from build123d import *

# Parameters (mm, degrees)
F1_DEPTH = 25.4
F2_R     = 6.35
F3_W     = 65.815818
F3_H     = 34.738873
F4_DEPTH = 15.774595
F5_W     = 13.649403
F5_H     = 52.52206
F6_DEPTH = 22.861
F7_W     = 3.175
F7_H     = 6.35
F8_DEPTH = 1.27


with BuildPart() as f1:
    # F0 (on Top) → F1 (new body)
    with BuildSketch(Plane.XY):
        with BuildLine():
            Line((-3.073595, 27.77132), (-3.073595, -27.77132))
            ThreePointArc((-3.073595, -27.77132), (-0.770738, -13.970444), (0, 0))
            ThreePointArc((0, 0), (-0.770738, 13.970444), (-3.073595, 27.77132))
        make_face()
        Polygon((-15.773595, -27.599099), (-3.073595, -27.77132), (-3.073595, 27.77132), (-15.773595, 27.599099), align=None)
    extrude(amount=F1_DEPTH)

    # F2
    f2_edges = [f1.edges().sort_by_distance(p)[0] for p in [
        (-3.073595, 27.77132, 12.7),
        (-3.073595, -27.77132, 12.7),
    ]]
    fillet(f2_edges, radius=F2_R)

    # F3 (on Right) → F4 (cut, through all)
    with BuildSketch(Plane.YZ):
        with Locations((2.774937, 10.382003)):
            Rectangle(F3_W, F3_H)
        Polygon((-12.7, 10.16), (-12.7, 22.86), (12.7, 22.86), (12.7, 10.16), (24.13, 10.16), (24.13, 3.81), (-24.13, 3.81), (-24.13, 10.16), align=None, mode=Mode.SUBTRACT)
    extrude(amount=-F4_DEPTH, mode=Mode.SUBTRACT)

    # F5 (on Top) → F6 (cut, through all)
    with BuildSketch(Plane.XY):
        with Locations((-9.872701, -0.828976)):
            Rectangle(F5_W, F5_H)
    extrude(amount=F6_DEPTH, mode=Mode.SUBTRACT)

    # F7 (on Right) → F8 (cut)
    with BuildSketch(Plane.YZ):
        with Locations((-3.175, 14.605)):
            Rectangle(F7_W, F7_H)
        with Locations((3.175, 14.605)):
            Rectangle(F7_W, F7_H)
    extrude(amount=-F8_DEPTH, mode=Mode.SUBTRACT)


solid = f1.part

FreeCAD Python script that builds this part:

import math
import FreeCAD as App
import Part
import Sketcher
from FreeCAD import Vector
Q = App.Units.Quantity


def edges_at(feature, points):
    """Names of the edges that pass closest to the given points."""
    edges = feature.Shape.Edges
    near = lambda p: min(range(len(edges)), key=lambda i: edges[i].distToShape(Part.Vertex(*p))[0])
    return sorted({f"Edge{near(p) + 1}" for p in points})


def add_polygon(sketch, points):
    """Adds a closed chain of lines whose ends are joined by coincident constraints."""
    first, n = sketch.GeometryCount, len(points)
    for a, b in zip(points, points[1:] + points[:1]):
        sketch.addGeometry(Part.LineSegment(App.Vector(*a, 0), App.Vector(*b, 0)), False)
    for i in range(n):
        sketch.addConstraint(Sketcher.Constraint("Coincident", first + i, 2, first + (i + 1) % n, 1))

doc = App.newDocument("Part")
params = doc.addObject("Spreadsheet::Sheet", "Params")
for row, (alias, value) in enumerate([
    ("pad1_length", "1 in"),
    ("fillet_radius", "0.25 in"),
    ("sketch2_width", "1 in"),
    ("sketch2_width2", "1.9 in"),
    ("sketch2_height", "0.5 in"),
    ("sketch2_height2", "0.25 in"),
    ("sketch4_height", "0.25 in"),
    ("sketch4_width", "0.125 in"),
    ("pocket3_length", "0.05 in"),
], start=1):
    params.set(f"A{row}", alias)
    params.set(f"B{row}", "=" + value)
    params.setAlias(f"B{row}", alias)

body = doc.addObject("PartDesign::Body", "Body")

# Sketch on XY plane
sketch1 = body.newObject("Sketcher::SketchObject", "Sketch")
sketch1.AttachmentSupport = (doc.getObject("XY_Plane"), [""])
sketch1.MapMode = "FlatFace"
sketch1.addGeometry([
    Part.ArcOfCircle(Part.Circle(Vector(-127.000093, 0.000009, 0), Vector(0, 0, 1), 127.000093), math.radians(-12.631029), math.radians(-0.000004)),  # 0
    Part.ArcOfCircle(Part.Circle(Vector(-127.000093, -0.000009, 0), Vector(0, 0, 1), 127.000093), math.radians(0.000004), math.radians(12.631029)),  # 1
    Part.LineSegment(Vector(-3.073595, 27.77132, 0), Vector(-15.773595, 27.599099, 0)),  # 2
    Part.LineSegment(Vector(-15.773595, 27.599099, 0), Vector(-15.773595, -27.599099, 0)),  # 3
    Part.LineSegment(Vector(-15.773595, -27.599099, 0), Vector(-3.073595, -27.77132, 0)),  # 4
], False)
sketch1.addConstraint([
    Sketcher.Constraint("Tangent", 0, 2, 1, 1),
    Sketcher.Constraint("Coincident", 1, 2, 2, 1),
    Sketcher.Constraint("Coincident", 2, 2, 3, 1),
    Sketcher.Constraint("Coincident", 3, 2, 4, 1),
    Sketcher.Constraint("Coincident", 4, 2, 0, 1),
    Sketcher.Constraint("Vertical", 3),
    Sketcher.Constraint("Coincident", 0, 2, -1, 1),
    Sketcher.Constraint("Equal", 0, 1),
    Sketcher.Constraint("Symmetric", 1, 2, 4, 2, -1),
    Sketcher.Constraint("Equal", 2, 4),
    Sketcher.Constraint("DistanceX", 2, 2, 1, 2, Q("0.5 in")),
    Sketcher.Constraint("Radius", 0, Q("127.000093 mm")),
    Sketcher.Constraint("DistanceY", -1, 1, 2, 2, Q("27.599099 mm")),
    Sketcher.Constraint("DistanceX", 0, 3, 1, 2, Q("123.926498 mm")),
])
pad1 = body.newObject("PartDesign::Pad", "Pad")
pad1.Profile = sketch1
pad1.setExpression("Length", "Params.pad1_length")
doc.recompute()

fillet = body.newObject("PartDesign::Fillet", "Fillet")
fillet.Base = (pad1, edges_at(pad1, [(-3.074, 27.771, 12.7), (-3.074, -27.771, 12.7)]))
fillet.setExpression("Radius", "Params.fillet_radius")

# Sketch on YZ plane
sketch2 = body.newObject("Sketcher::SketchObject", "Sketch001")
sketch2.AttachmentSupport = (doc.getObject("YZ_Plane"), [""])
sketch2.MapMode = "FlatFace"
add_polygon(sketch2, [(-30, 28), (-30, -7), (36, -7), (36, 28)])  # lines 0-3
add_polygon(sketch2, [(-24, 10), (-13, 10), (-13, 23), (13, 23), (13, 10), (24, 10), (24, 4), (-24, 4)])  # lines 4-11
sketch2.addConstraint([
    Sketcher.Constraint("Vertical", 0),
    Sketcher.Constraint("Horizontal", 1),
    Sketcher.Constraint("Vertical", 2),
    Sketcher.Constraint("Horizontal", 3),
    Sketcher.Constraint("Horizontal", 4),
    Sketcher.Constraint("Vertical", 5),
    Sketcher.Constraint("Horizontal", 6),
    Sketcher.Constraint("Vertical", 7),
    Sketcher.Constraint("Horizontal", 8),
    Sketcher.Constraint("Vertical", 9),
    Sketcher.Constraint("Horizontal", 10),
    Sketcher.Constraint("Vertical", 11),
    Sketcher.Constraint("Symmetric", 4, 2, 7, 2, -2),
    Sketcher.Constraint("Equal", 4, 8),
    Sketcher.Constraint("DistanceX", 6, 1, 6, 2, Q("1 in")),
    Sketcher.Constraint("DistanceX", 10, 2, 10, 1, Q("1.9 in")),
    Sketcher.Constraint("DistanceY", 5, 1, 5, 2, Q("0.5 in")),
    Sketcher.Constraint("DistanceY", 9, 2, 9, 1, Q("0.25 in")),
    Sketcher.Constraint("DistanceY", -1, 1, 4, 2, Q("0.4 in")),
    Sketcher.Constraint("DistanceX", 1, 1, 1, 2, Q("65.815818 mm")),
    Sketcher.Constraint("DistanceY", 0, 2, 0, 1, Q("34.738873 mm")),
    Sketcher.Constraint("DistanceX", 0, 2, -1, 1, Q("30.132972 mm")),
    Sketcher.Constraint("DistanceY", -1, 1, 2, 2, Q("27.75144 mm")),
])
sketch2.setExpression("Constraints[26]", "Params.sketch2_width")
sketch2.setExpression("Constraints[27]", "Params.sketch2_width2")
sketch2.setExpression("Constraints[28]", "Params.sketch2_height")
sketch2.setExpression("Constraints[29]", "Params.sketch2_height2")
pocket1 = body.newObject("PartDesign::Pocket", "Pocket")
pocket1.Profile = sketch2
pocket1.Type = "ThroughAll"

# Sketch on XY plane
sketch3 = body.newObject("Sketcher::SketchObject", "Sketch002")
sketch3.AttachmentSupport = (doc.getObject("XY_Plane"), [""])
sketch3.MapMode = "FlatFace"
add_polygon(sketch3, [(-17, 25), (-17, -27), (-3, -27), (-3, 25)])  # lines 0-3
sketch3.addConstraint([
    Sketcher.Constraint("Vertical", 0),
    Sketcher.Constraint("Horizontal", 1),
    Sketcher.Constraint("Vertical", 2),
    Sketcher.Constraint("Horizontal", 3),
    Sketcher.Constraint("DistanceX", 1, 2, -1, 1, Q("0.12 in")),
    Sketcher.Constraint("DistanceY", 0, 2, 0, 1, Q("52.52206 mm")),
    Sketcher.Constraint("DistanceX", 1, 1, 1, 2, Q("13.649403 mm")),
    Sketcher.Constraint("DistanceY", 0, 2, -1, 1, Q("27.090006 mm")),
])
pocket2 = body.newObject("PartDesign::Pocket", "Pocket001")
pocket2.Profile = sketch3
pocket2.Type = "ThroughAll"
pocket2.Reversed = True

# Sketch on YZ plane
sketch4 = body.newObject("Sketcher::SketchObject", "Sketch003")
sketch4.AttachmentSupport = (doc.getObject("YZ_Plane"), [""])
sketch4.MapMode = "FlatFace"
add_polygon(sketch4, [(-4.8, 17.8), (-4.8, 11.4), (-1.6, 11.4), (-1.6, 17.8)])  # lines 0-3
add_polygon(sketch4, [(1.6, 17.8), (1.6, 11.4), (4.8, 11.4), (4.8, 17.8)])  # lines 4-7
sketch4.addConstraint([
    Sketcher.Constraint("Vertical", 0),
    Sketcher.Constraint("Horizontal", 1),
    Sketcher.Constraint("Vertical", 2),
    Sketcher.Constraint("Horizontal", 3),
    Sketcher.Constraint("Vertical", 4),
    Sketcher.Constraint("Horizontal", 5),
    Sketcher.Constraint("Vertical", 6),
    Sketcher.Constraint("Horizontal", 7),
    Sketcher.Constraint("Symmetric", 1, 2, 4, 2, -2),
    Sketcher.Constraint("Symmetric", 3, 2, 6, 2, -2),
    Sketcher.Constraint("DistanceY", 0, 2, 0, 1, Q("0.25 in")),
    Sketcher.Constraint("DistanceY", -1, 1, 2, 2, Q("0.7 in")),
    Sketcher.Constraint("DistanceX", 1, 1, 1, 2, Q("0.125 in")),
    Sketcher.Constraint("DistanceX", 0, 2, 4, 2, Q("0.25 in")),
])
sketch4.setExpression("Constraints[18]", "Params.sketch4_height")
sketch4.setExpression("Constraints[20]", "Params.sketch4_width")
pocket3 = body.newObject("PartDesign::Pocket", "Pocket002")
pocket3.Profile = sketch4
pocket3.setExpression("Length", "Params.pocket3_length")

doc.recompute()
